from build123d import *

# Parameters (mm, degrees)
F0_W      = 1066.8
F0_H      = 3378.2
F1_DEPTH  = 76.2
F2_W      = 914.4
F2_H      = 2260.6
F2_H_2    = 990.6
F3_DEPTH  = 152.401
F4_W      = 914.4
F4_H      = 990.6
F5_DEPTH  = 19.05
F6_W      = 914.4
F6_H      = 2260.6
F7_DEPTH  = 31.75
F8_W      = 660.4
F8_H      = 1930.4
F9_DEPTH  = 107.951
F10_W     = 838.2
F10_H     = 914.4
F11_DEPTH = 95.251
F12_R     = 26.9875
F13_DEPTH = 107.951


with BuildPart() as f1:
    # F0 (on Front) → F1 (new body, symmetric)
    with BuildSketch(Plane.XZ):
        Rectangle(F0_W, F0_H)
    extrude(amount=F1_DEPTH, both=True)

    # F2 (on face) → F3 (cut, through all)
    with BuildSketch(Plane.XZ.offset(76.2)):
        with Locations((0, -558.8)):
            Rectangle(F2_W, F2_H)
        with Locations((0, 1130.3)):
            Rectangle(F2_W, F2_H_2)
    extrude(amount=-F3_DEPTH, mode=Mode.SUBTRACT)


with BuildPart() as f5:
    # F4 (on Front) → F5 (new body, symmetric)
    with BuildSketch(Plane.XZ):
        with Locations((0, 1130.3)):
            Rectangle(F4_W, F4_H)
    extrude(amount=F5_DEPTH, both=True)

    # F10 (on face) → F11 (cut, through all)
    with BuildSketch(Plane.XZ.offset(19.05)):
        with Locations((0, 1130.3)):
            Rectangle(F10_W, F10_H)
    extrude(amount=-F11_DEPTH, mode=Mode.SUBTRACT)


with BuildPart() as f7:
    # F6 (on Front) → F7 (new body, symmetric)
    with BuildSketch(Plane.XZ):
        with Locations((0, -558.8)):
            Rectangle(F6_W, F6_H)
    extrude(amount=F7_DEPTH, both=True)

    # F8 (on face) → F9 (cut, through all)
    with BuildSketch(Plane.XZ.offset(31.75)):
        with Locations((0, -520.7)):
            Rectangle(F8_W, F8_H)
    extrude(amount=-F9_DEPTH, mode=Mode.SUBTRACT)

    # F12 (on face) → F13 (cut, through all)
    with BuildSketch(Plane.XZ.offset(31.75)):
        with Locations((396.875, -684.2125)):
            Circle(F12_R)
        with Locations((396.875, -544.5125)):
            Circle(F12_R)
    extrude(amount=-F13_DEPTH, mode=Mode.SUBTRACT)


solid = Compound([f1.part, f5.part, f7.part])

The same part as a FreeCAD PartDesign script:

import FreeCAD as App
import Part
import Sketcher

V = App.Vector
Q = App.Units.Quantity

doc = App.newDocument("Part")
body = doc.addObject("PartDesign::Body", "Body")

sketch1 = body.newObject("Sketcher::SketchObject", "Sketch")
sketch1.AttachmentSupport = (doc.getObject("XZ_Plane"), [""])
sketch1.MapMode = "FlatFace"
sketch1.addGeometry([
    Part.LineSegment(V(-533, 1689, 0), V(-533, -1689, 0)),
    Part.LineSegment(V(-533, -1689, 0), V(533, -1689, 0)),
    Part.LineSegment(V(533, -1689, 0), V(533, 1689, 0)),
    Part.LineSegment(V(533, 1689, 0), V(-533, 1689, 0)),
], False)
sketch1.addConstraint([
    Sketcher.Constraint("Coincident", 0, 2, 1, 1),
    Sketcher.Constraint("Coincident", 1, 2, 2, 1),
    Sketcher.Constraint("Coincident", 2, 2, 3, 1),
    Sketcher.Constraint("Coincident", 3, 2, 0, 1),
    Sketcher.Constraint("Vertical", 0),
    Sketcher.Constraint("Horizontal", 1),
    Sketcher.Constraint("Vertical", 2),
    Sketcher.Constraint("Horizontal", 3),
    Sketcher.Constraint("Symmetric", 0, 2, 2, 2, -1, 1),
    Sketcher.Constraint("DistanceX", 1, 1, 1, 2, Q("42 in")),
    Sketcher.Constraint("DistanceY", 0, 2, 0, 1, Q("133 in")),
])
pad1 = body.newObject("PartDesign::Pad", "Pad")
pad1.Profile = sketch1
pad1.Length = Q("6 in")
pad1.Midplane = True

sketch2 = body.newObject("Sketcher::SketchObject", "Sketch001")
sketch2.AttachmentSupport = (doc.getObject("XZ_Plane"), [""])
sketch2.MapMode = "FlatFace"
sketch2.AttachmentOffset = App.Placement(V(0, 0, 3 * 25.4), App.Rotation())
sketch2.addGeometry([
    Part.LineSegment(V(-457, 572, 0), V(-457, -1689, 0)),
    Part.LineSegment(V(-457, -1689, 0), V(457, -1689, 0)),
    Part.LineSegment(V(457, -1689, 0), V(457, 572, 0)),
    Part.LineSegment(V(457, 572, 0), V(-457, 572, 0)),
    Part.LineSegment(V(-457, 1626, 0), V(-457, 635, 0)),
    Part.LineSegment(V(-457, 635, 0), V(457, 635, 0)),
    Part.LineSegment(V(457, 635, 0), V(457, 1626, 0)),
    Part.LineSegment(V(457, 1626, 0), V(-457, 1626, 0)),
], False)
sketch2.addConstraint([
    Sketcher.Constraint("Coincident", 0, 2, 1, 1),
    Sketcher.Constraint("Coincident", 1, 2, 2, 1),
    Sketcher.Constraint("Coincident", 2, 2, 3, 1),
    Sketcher.Constraint("Coincident", 3, 2, 0, 1),
    Sketcher.Constraint("Coincident", 4, 2, 5, 1),
    Sketcher.Constraint("Coincident", 5, 2, 6, 1),
    Sketcher.Constraint("Coincident", 6, 2, 7, 1),
    Sketcher.Constraint("Coincident", 7, 2, 4, 1),
    Sketcher.Constraint("Vertical", 0),
    Sketcher.Constraint("Horizontal", 1),
    Sketcher.Constraint("Vertical", 2),
    Sketcher.Constraint("Horizontal", 3),
    Sketcher.Constraint("Vertical", 4),
    Sketcher.Constraint("Horizontal", 5),
    Sketcher.Constraint("Vertical", 6),
    Sketcher.Constraint("Horizontal", 7),
    Sketcher.Constraint("Vertical", 3, 2, 4, 2),
    Sketcher.Constraint("Vertical", 2, 2, 5, 2),
    Sketcher.Constraint("DistanceX", 1, 1, 1, 2, Q("36 in")),
    Sketcher.Constraint("DistanceY", 0, 2, 0, 1, Q("89 in")),
    Sketcher.Constraint("DistanceY", 4, 2, 4, 1, Q("39 in")),
    Sketcher.Constraint("DistanceX", 0, 2, -1, 1, Q("18 in")),
    Sketcher.Constraint("DistanceY", -1, 1, 4, 2, Q("25 in")),
    Sketcher.Constraint("DistanceY", 0, 2, -1, 1, Q("66.5 in")),
])
pocket1 = body.newObject("PartDesign::Pocket", "Pocket")
pocket1.Profile = sketch2
pocket1.Type = "ThroughAll"
body2 = doc.addObject("PartDesign::Body", "Body001")

sketch3 = body2.newObject("Sketcher::SketchObject", "Sketch002")
sketch3.AttachmentSupport = (doc.getObject("XZ_Plane001"), [""])
sketch3.MapMode = "FlatFace"
sketch3.addGeometry([
    Part.LineSegment(V(-457, 1626, 0), V(-457, 635, 0)),
    Part.LineSegment(V(-457, 635, 0), V(457, 635, 0)),
    Part.LineSegment(V(457, 635, 0), V(457, 1626, 0)),
    Part.LineSegment(V(457, 1626, 0), V(-457, 1626, 0)),
], False)
sketch3.addConstraint([
    Sketcher.Constraint("Coincident", 0, 2, 1, 1),
    Sketcher.Constraint("Coincident", 1, 2, 2, 1),
    Sketcher.Constraint("Coincident", 2, 2, 3, 1),
    Sketcher.Constraint("Coincident", 3, 2, 0, 1),
    Sketcher.Constraint("Vertical", 0),
    Sketcher.Constraint("Horizontal", 1),
    Sketcher.Constraint("Vertical", 2),
    Sketcher.Constraint("Horizontal", 3),
    Sketcher.Constraint("DistanceX", 1, 1, 1, 2, Q("36 in")),
    Sketcher.Constraint("DistanceY", 0, 2, 0, 1, Q("39 in")),
    Sketcher.Constraint("DistanceX", 0, 2, -1, 1, Q("18 in")),
    Sketcher.Constraint("DistanceY", -1, 1, 0, 2, Q("25 in")),
])
pad2 = body2.newObject("PartDesign::Pad", "Pad001")
pad2.Profile = sketch3
pad2.Length = Q("1.5 in")
pad2.Midplane = True

sketch4 = body2.newObject("Sketcher::SketchObject", "Sketch003")
sketch4.AttachmentSupport = (doc.getObject("XZ_Plane001"), [""])
sketch4.MapMode = "FlatFace"
sketch4.AttachmentOffset = App.Placement(V(0, 0, 0.75 * 25.4), App.Rotation())
sketch4.addGeometry([
    Part.LineSegment(V(-419, 1588, 0), V(-419, 673, 0)),
    Part.LineSegment(V(-419, 673, 0), V(419, 673, 0)),
    Part.LineSegment(V(419, 673, 0), V(419, 1588, 0)),
    Part.LineSegment(V(419, 1588, 0), V(-419, 1588, 0)),
], False)
sketch4.addConstraint([
    Sketcher.Constraint("Coincident", 0, 2, 1, 1),
    Sketcher.Constraint("Coincident", 1, 2, 2, 1),
    Sketcher.Constraint("Coincident", 2, 2, 3, 1),
    Sketcher.Constraint("Coincident", 3, 2, 0, 1),
    Sketcher.Constraint("Vertical", 0),
    Sketcher.Constraint("Horizontal", 1),
    Sketcher.Constraint("Vertical", 2),
    Sketcher.Constraint("Horizontal", 3),
    Sketcher.Constraint("DistanceX", 1, 1, 1, 2, Q("33 in")),
    Sketcher.Constraint("DistanceY", 0, 2, 0, 1, Q("36 in")),
    Sketcher.Constraint("DistanceX", 0, 2, -1, 1, Q("16.5 in")),
    Sketcher.Constraint("DistanceY", -1, 1, 0, 2, Q("26.5 in")),
])
pocket2 = body2.newObject("PartDesign::Pocket", "Pocket001")
pocket2.Profile = sketch4
pocket2.Type = "ThroughAll"
body3 = doc.addObject("PartDesign::Body", "Body002")

sketch5 = body3.newObject("Sketcher::SketchObject", "Sketch004")
sketch5.AttachmentSupport = (doc.getObject("XZ_Plane002"), [""])
sketch5.MapMode = "FlatFace"
sketch5.addGeometry([
    Part.LineSegment(V(-457, 572, 0), V(-457, -1689, 0)),
    Part.LineSegment(V(-457, -1689, 0), V(457, -1689, 0)),
    Part.LineSegment(V(457, -1689, 0), V(457, 572, 0)),
    Part.LineSegment(V(457, 572, 0), V(-457, 572, 0)),
], False)
sketch5.addConstraint([
    Sketcher.Constraint("Coincident", 0, 2, 1, 1),
    Sketcher.Constraint("Coincident", 1, 2, 2, 1),
    Sketcher.Constraint("Coincident", 2, 2, 3, 1),
    Sketcher.Constraint("Coincident", 3, 2, 0, 1),
    Sketcher.Constraint("Vertical", 0),
    Sketcher.Constraint("Horizontal", 1),
    Sketcher.Constraint("Vertical", 2),
    Sketcher.Constraint("Horizontal", 3),
    Sketcher.Constraint("DistanceX", 1, 1, 1, 2, Q("36 in")),
    Sketcher.Constraint("DistanceY", 0, 2, 0, 1, Q("89 in")),
    Sketcher.Constraint("DistanceX", 0, 2, -1, 1, Q("18 in")),
    Sketcher.Constraint("DistanceY", 0, 2, -1, 1, Q("66.5 in")),
])
pad3 = body3.newObject("PartDesign::Pad", "Pad002")
pad3.Profile = sketch5
pad3.Length = Q("2.5 in")
pad3.Midplane = True

sketch6 = body3.newObject("Sketcher::SketchObject", "Sketch005")
sketch6.AttachmentSupport = (doc.getObject("XZ_Plane002"), [""])
sketch6.MapMode = "FlatFace"
sketch6.AttachmentOffset = App.Placement(V(0, 0, 1.25 * 25.4), App.Rotation())
sketch6.addGeometry([
    Part.LineSegment(V(-330, 444, 0), V(-330, -1486, 0)),
    Part.LineSegment(V(-330, -1486, 0), V(330, -1486, 0)),
    Part.LineSegment(V(330, -1486, 0), V(330, 444, 0)),
    Part.LineSegment(V(330, 444, 0), V(-330, 444, 0)),
], False)
sketch6.addConstraint([
    Sketcher.Constraint("Coincident", 0, 2, 1, 1),
    Sketcher.Constraint("Coincident", 1, 2, 2, 1),
    Sketcher.Constraint("Coincident", 2, 2, 3, 1),
    Sketcher.Constraint("Coincident", 3, 2, 0, 1),
    Sketcher.Constraint("Vertical", 0),
    Sketcher.Constraint("Horizontal", 1),
    Sketcher.Constraint("Vertical", 2),
    Sketcher.Constraint("Horizontal", 3),
    Sketcher.Constraint("DistanceX", 1, 1, 1, 2, Q("26 in")),
    Sketcher.Constraint("DistanceY", 0, 2, 0, 1, Q("76 in")),
    Sketcher.Constraint("DistanceX", 0, 2, -1, 1, Q("13 in")),
    Sketcher.Constraint("DistanceY", 0, 2, -1, 1, Q("58.5 in")),
])
pocket3 = body3.newObject("PartDesign::Pocket", "Pocket002")
pocket3.Profile = sketch6
pocket3.Type = "ThroughAll"

sketch7 = body3.newObject("Sketcher::SketchObject", "Sketch006")
sketch7.AttachmentSupport = (doc.getObject("XZ_Plane002"), [""])
sketch7.MapMode = "FlatFace"
sketch7.AttachmentOffset = App.Placement(V(0, 0, 1.25 * 25.4), App.Rotation())
sketch7.addGeometry([
    Part.Circle(V(397, -684, 0), V(0, 0, 1), 27),
    Part.Circle(V(397, -545, 0), V(0, 0, 1), 27),
], False)
sketch7.addConstraint([
    Sketcher.Constraint("Equal", 0, 1),
    Sketcher.Constraint("Vertical", 0, 3, 1, 3),
    Sketcher.Constraint("Diameter", 0, Q("2.125 in")),
    Sketcher.Constraint("DistanceY", 0, 3, 1, 3, Q("5.5 in")),
    Sketcher.Constraint("DistanceX", -1, 1, 0, 3, Q("15.625 in")),
    Sketcher.Constraint("DistanceY", 0, 3, -1, 1, Q("26.9375 in")),
])
pocket4 = body3.newObject("PartDesign::Pocket", "Pocket003")
pocket4.Profile = sketch7
pocket4.Type = "ThroughAll"

doc.recompute()
